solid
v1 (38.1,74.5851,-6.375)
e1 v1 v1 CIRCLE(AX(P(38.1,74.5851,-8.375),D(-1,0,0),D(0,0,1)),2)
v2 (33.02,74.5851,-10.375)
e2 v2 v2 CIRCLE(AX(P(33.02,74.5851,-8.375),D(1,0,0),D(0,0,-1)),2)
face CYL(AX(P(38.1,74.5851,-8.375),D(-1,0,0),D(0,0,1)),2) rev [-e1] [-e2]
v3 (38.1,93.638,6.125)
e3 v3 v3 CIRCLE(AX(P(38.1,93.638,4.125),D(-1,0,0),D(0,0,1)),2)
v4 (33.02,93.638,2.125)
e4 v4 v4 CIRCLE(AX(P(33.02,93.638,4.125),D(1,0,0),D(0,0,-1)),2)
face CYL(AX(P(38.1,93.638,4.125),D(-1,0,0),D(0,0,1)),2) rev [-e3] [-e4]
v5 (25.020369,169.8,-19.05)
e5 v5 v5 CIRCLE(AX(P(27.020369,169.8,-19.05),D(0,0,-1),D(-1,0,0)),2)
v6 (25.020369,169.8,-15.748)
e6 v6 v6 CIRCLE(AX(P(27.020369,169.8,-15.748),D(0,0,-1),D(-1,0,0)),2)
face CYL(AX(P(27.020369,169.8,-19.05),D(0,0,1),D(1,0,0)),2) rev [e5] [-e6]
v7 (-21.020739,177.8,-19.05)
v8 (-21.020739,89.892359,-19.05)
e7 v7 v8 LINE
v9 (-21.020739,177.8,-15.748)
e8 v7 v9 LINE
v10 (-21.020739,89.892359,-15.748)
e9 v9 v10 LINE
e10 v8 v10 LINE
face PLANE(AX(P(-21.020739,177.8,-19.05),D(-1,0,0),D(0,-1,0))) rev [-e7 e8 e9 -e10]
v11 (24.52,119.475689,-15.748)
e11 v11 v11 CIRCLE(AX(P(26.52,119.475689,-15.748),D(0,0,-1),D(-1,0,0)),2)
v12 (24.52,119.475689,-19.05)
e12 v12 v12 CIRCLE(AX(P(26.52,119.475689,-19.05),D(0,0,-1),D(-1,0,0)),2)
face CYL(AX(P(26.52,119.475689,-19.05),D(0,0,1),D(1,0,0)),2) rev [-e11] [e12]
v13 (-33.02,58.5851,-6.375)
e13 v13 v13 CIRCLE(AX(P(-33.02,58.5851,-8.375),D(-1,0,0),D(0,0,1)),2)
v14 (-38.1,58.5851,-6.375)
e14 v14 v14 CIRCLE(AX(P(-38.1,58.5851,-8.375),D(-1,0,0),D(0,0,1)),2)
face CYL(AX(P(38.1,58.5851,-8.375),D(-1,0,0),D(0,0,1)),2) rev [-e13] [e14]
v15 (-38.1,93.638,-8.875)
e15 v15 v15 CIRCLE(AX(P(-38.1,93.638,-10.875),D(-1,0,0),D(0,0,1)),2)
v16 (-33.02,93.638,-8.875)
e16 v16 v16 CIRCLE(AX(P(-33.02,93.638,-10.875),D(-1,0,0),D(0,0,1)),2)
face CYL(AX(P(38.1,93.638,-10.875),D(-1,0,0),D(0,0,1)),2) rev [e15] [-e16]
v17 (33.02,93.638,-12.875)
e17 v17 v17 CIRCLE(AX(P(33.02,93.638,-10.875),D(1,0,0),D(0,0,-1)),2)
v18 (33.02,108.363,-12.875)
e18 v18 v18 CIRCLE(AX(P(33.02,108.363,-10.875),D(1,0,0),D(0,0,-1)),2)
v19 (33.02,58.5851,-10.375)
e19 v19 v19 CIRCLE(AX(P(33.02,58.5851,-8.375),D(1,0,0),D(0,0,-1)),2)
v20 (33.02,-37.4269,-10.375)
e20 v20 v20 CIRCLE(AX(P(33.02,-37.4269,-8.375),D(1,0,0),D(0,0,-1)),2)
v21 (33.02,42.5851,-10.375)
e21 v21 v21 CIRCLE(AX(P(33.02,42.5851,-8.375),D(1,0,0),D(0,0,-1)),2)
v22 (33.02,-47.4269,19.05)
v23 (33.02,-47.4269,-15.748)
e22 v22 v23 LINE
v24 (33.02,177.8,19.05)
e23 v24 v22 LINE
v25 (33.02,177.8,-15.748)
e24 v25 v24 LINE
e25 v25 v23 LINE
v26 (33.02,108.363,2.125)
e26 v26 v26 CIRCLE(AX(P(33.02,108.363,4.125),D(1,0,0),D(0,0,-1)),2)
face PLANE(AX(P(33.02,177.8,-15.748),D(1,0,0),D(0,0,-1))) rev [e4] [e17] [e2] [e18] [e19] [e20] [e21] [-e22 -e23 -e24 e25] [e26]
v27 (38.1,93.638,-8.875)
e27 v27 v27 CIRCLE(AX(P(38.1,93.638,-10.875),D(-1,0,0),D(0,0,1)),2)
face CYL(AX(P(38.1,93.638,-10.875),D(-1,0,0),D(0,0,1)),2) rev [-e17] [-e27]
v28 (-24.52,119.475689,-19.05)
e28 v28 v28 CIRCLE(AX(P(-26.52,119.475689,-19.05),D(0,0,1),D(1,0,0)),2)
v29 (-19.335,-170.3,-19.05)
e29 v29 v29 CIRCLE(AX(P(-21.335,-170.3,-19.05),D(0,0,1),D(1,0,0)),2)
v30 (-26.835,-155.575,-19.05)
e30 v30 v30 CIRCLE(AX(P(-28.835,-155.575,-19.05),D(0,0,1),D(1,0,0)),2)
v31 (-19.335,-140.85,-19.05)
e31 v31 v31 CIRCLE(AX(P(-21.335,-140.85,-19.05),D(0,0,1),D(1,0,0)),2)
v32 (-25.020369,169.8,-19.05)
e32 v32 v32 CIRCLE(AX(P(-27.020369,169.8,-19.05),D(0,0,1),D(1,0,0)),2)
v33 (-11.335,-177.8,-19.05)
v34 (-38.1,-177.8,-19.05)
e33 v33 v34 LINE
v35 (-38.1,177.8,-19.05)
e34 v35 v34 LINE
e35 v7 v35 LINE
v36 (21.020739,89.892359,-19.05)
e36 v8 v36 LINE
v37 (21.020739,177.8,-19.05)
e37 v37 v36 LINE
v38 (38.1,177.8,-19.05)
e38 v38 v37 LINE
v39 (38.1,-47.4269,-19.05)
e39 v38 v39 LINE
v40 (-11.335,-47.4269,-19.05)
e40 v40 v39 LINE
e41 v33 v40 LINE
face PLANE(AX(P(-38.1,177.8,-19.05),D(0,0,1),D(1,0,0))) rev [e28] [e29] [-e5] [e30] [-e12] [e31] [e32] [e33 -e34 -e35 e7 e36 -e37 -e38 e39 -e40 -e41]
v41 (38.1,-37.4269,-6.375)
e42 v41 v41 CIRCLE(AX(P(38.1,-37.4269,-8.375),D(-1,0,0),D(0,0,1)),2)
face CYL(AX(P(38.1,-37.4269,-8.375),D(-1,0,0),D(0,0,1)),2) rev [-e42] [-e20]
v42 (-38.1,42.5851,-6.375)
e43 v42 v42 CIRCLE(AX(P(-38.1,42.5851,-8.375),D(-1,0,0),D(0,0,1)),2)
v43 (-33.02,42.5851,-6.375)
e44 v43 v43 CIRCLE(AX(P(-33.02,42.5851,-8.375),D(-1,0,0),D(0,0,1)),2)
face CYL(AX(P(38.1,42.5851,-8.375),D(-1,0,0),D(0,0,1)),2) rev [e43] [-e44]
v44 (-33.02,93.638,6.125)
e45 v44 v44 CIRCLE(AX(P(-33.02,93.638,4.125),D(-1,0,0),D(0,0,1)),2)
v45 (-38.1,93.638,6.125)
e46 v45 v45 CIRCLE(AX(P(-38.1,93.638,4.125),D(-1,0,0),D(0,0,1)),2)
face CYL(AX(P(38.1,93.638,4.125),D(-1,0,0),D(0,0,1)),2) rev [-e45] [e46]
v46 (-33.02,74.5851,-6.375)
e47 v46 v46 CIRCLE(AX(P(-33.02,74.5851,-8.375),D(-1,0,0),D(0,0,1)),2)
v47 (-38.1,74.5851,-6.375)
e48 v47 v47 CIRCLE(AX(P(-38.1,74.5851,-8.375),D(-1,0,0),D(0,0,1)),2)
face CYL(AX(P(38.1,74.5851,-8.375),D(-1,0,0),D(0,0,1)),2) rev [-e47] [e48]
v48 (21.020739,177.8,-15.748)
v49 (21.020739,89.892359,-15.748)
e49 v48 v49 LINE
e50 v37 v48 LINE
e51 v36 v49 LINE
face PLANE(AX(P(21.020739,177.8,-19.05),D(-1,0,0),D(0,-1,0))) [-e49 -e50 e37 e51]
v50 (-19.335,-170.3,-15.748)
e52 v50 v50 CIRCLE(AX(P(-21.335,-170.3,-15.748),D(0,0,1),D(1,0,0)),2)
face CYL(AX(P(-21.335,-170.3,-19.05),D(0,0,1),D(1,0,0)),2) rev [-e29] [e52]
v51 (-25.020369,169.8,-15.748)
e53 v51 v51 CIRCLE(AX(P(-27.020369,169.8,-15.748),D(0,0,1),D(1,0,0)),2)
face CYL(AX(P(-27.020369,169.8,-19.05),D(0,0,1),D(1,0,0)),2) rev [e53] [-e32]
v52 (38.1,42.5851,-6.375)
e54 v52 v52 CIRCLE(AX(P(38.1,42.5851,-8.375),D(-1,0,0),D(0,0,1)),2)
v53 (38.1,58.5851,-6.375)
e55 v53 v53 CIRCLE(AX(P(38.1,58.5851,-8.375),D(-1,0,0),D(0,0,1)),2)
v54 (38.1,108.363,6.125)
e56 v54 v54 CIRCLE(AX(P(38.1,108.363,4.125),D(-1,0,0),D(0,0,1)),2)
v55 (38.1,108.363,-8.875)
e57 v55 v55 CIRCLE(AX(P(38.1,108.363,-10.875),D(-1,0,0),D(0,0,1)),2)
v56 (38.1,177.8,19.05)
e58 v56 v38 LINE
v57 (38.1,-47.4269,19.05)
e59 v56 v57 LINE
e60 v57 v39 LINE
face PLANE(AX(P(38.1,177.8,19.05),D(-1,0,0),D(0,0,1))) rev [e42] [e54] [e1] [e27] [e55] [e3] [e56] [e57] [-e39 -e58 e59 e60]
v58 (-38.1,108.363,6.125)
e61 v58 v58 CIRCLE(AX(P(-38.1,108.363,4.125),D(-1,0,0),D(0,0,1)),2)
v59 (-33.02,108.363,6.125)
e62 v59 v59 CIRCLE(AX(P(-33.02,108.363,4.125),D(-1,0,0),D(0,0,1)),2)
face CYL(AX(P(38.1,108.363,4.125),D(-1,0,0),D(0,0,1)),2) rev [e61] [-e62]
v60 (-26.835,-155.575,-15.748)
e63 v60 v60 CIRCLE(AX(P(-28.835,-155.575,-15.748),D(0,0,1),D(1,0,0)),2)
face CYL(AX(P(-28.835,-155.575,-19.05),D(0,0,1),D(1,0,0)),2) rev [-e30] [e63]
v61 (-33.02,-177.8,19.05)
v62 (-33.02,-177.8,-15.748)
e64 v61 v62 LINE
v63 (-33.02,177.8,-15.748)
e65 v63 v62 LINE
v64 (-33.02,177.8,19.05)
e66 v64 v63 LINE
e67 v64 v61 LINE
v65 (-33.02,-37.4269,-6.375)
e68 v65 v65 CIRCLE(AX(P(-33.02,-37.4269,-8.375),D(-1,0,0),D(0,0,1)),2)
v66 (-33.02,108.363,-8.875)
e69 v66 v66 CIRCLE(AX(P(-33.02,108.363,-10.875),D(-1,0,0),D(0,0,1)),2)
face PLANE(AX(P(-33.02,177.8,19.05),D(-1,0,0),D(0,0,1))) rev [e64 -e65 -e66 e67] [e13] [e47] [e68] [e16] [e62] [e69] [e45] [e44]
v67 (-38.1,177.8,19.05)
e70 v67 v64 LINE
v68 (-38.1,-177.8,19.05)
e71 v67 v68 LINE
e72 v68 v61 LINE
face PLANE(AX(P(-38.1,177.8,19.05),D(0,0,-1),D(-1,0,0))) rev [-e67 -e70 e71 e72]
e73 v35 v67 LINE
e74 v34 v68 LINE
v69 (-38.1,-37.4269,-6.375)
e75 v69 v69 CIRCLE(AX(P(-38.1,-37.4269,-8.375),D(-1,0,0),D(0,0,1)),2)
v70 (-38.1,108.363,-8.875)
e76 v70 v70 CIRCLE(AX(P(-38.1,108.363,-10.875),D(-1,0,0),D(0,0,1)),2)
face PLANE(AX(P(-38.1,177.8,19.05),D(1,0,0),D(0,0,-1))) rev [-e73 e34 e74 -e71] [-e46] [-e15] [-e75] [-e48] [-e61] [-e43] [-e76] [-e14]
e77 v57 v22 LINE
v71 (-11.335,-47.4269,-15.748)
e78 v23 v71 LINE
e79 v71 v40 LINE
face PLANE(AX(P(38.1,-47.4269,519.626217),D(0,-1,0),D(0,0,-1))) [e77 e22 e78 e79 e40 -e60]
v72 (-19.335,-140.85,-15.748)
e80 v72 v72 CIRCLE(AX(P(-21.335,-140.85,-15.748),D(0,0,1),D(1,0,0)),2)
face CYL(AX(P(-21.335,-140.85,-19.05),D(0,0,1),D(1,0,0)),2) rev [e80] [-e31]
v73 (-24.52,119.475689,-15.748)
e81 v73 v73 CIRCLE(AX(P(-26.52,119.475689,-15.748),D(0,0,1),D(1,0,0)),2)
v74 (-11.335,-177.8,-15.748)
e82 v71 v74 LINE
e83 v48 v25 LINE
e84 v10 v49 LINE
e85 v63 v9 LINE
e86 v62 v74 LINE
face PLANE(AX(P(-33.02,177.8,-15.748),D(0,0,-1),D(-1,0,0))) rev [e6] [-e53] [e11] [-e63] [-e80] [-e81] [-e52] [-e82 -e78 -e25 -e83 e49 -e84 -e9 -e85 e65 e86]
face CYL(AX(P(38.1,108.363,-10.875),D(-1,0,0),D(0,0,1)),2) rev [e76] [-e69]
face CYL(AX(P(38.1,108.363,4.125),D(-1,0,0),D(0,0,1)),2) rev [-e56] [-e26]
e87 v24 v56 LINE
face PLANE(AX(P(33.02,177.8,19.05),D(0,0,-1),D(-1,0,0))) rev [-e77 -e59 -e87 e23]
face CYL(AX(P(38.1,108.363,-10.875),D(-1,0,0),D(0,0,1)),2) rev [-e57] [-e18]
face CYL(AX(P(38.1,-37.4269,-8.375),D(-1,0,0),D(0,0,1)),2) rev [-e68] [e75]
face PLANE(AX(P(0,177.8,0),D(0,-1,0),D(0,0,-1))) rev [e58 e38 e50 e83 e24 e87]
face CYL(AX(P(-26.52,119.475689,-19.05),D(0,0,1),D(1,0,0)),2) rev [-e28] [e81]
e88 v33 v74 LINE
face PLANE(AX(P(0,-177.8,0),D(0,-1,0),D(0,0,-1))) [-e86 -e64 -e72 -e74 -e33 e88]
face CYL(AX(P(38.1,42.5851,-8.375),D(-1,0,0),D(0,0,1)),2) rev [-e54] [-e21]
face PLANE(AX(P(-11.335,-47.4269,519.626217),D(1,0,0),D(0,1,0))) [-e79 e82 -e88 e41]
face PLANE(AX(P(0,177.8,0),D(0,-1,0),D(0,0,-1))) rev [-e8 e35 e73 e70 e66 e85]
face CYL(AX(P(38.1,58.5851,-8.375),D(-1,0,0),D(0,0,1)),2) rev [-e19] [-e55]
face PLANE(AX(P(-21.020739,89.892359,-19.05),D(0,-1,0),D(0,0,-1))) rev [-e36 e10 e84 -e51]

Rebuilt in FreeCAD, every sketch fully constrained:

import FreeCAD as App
import Part
import Sketcher
Q = App.Units.Quantity


def add_polygon(sketch, points):
    """Adds a closed chain of lines whose ends are joined by coincident constraints."""
    first, n = sketch.GeometryCount, len(points)
    for a, b in zip(points, points[1:] + points[:1]):
        sketch.addGeometry(Part.LineSegment(App.Vector(*a, 0), App.Vector(*b, 0)), False)
    for i in range(n):
        sketch.addConstraint(Sketcher.Constraint("Coincident", first + i, 2, first + (i + 1) % n, 1))

doc = App.newDocument("Part")
body = doc.addObject("PartDesign::Body", "Body")

# Sketch on XZ plane
sketch1 = body.newObject("Sketcher::SketchObject", "Sketch")
sketch1.AttachmentSupport = (doc.getObject("XZ_Plane"), [""])
sketch1.MapMode = "FlatFace"
add_polygon(sketch1, [(-38, 19), (-33, 19), (-33, -16), (33, -16), (33, 19), (38, 19), (38, -19), (-38, -19)])  # lines 0-7
sketch1.addConstraint(Sketcher.Constraint("Horizontal", 0))
sketch1.addConstraint(Sketcher.Constraint("Vertical", 1))
sketch1.addConstraint(Sketcher.Constraint("Horizontal", 2))
sketch1.addConstraint(Sketcher.Constraint("Vertical", 3))
sketch1.addConstraint(Sketcher.Constraint("Horizontal", 4))
sketch1.addConstraint(Sketcher.Constraint("Vertical", 5))
sketch1.addConstraint(Sketcher.Constraint("Horizontal", 6))
sketch1.addConstraint(Sketcher.Constraint("Vertical", 7))
sketch1.addConstraint(Sketcher.Constraint("Symmetric", 4, 2, 6, 2, -1, 1))
sketch1.addConstraint(Sketcher.Constraint("Symmetric", 0, 2, 3, 2, -2))
sketch1.addConstraint(Sketcher.Constraint("DistanceX", 6, 2, 6, 1, Q("3 in")))
sketch1.addConstraint(Sketcher.Constraint("DistanceX", 0, 1, 0, 2, Q("0.2 in")))
sketch1.addConstraint(Sketcher.Constraint("DistanceY", 5, 2, 5, 1, Q("1.5 in")))
sketch1.addConstraint(Sketcher.Constraint("DistanceY", 1, 2, 1, 1, Q("1.37 in")))
pad1 = body.newObject("PartDesign::Pad", "Pad")
pad1.Profile = sketch1
pad1.Length = Q("14 in")
pad1.Midplane = True

# Sketch on XY plane
sketch2 = body.newObject("Sketcher::SketchObject", "Sketch001")
sketch2.AttachmentSupport = (doc.getObject("XY_Plane"), [""])
sketch2.MapMode = "FlatFace"
sketch2.AttachmentOffset = App.Placement(App.Vector(0, 0, -0.62 * 25.4), App.Rotation())
sketch2.addGeometry(Part.Circle(App.Vector(-27, 169.8, 0), App.Vector(0, 0, 1), 2), False)  # 0
sketch2.addGeometry(Part.Circle(App.Vector(-26.5, 119.5, 0), App.Vector(0, 0, 1), 2), False)  # 1
add_polygon(sketch2, [(-21, 177.8), (-21, 89.9), (0, 89.9), (0, 177.8)])  # lines 2-5
sketch2.addConstraint(Sketcher.Constraint("Vertical", 2))
sketch2.addConstraint(Sketcher.Constraint("Horizontal", 3))
sketch2.addConstraint(Sketcher.Constraint("Vertical", 4))
sketch2.addConstraint(Sketcher.Constraint("Horizontal", 5))
sketch2.addConstraint(Sketcher.Constraint("Equal", 0, 1))
sketch2.addConstraint(Sketcher.Constraint("PointOnObject", 3, 2, -2))
sketch2.addConstraint(Sketcher.Constraint("DistanceY", -1, 1, 4, 2, Q("7 in")))
sketch2.addConstraint(Sketcher.Constraint("Diameter", 0, 4.0))
sketch2.addConstraint(Sketcher.Constraint("DistanceX", 3, 1, 3, 2, 21.020739))
sketch2.addConstraint(Sketcher.Constraint("DistanceY", 2, 2, 2, 1, 87.907641))
sketch2.addConstraint(Sketcher.Constraint("DistanceY", -1, 1, 0, 3, 169.8))
sketch2.addConstraint(Sketcher.Constraint("DistanceX", 1, 3, -1, 1, 26.52))
sketch2.addConstraint(Sketcher.Constraint("DistanceX", 0, 3, -1, 1, 27.020369))
sketch2.addConstraint(Sketcher.Constraint("DistanceY", -1, 1, 1, 3, 119.475689))
pocket1 = body.newObject("PartDesign::Pocket", "Pocket")
pocket1.Profile = sketch2
pocket1.Type = "ThroughAll"
doc.recompute()

mirrored = body.newObject("PartDesign::Mirrored", "Mirrored")
mirrored.Originals = [pocket1]
mirrored.MirrorPlane = (doc.getObject("YZ_Plane"), [""])
body.Tip = mirrored

# Sketch on XY plane
sketch3 = body.newObject("Sketcher::SketchObject", "Sketch002")
sketch3.AttachmentSupport = (doc.getObject("XY_Plane"), [""])
sketch3.MapMode = "FlatFace"
sketch3.AttachmentOffset = App.Placement(App.Vector(0, 0, -0.62 * 25.4), App.Rotation())
sketch3.addGeometry(Part.Circle(App.Vector(-21.3, -170.3, 0), App.Vector(0, 0, 1), 2), False)
sketch3.addGeometry(Part.Circle(App.Vector(-28.8, -155.6, 0), App.Vector(0, 0, 1), 2), False)
sketch3.addGeometry(Part.Circle(App.Vector(-21.3, -140.8, 0), App.Vector(0, 0, 1), 2), False)
sketch3.addConstraint(Sketcher.Constraint("Equal", 0, 1))
sketch3.addConstraint(Sketcher.Constraint("Equal", 1, 2))
sketch3.addConstraint(Sketcher.Constraint("Vertical", 0, 3, 2, 3))
sketch3.addConstraint(Sketcher.Constraint("Diameter", 0, 4.0))
sketch3.addConstraint(Sketcher.Constraint("DistanceY", 1, 3, -1, 1, Q("6.125 in")))
sketch3.addConstraint(Sketcher.Constraint("DistanceX", 0, 3, -1, 1, 21.335))
sketch3.addConstraint(Sketcher.Constraint("DistanceY", 0, 3, -1, 1, 170.3))
sketch3.addConstraint(Sketcher.Constraint("DistanceX", 1, 3, -1, 1, 28.835))
sketch3.addConstraint(Sketcher.Constraint("DistanceY", 2, 3, -1, 1, 140.85))
pocket2 = body.newObject("PartDesign::Pocket", "Pocket001")
pocket2.Profile = sketch3
pocket2.Type = "ThroughAll"

# Sketch on YZ plane
sketch4 = body.newObject("Sketcher::SketchObject", "Sketch003")
sketch4.AttachmentSupport = (doc.getObject("YZ_Plane"), [""])
sketch4.MapMode = "FlatFace"
sketch4.AttachmentOffset = App.Placement(App.Vector(0, 0, -1.5 * 25.4), App.Rotation())
sketch4.addGeometry(Part.Circle(App.Vector(58.6, -8.4, 0), App.Vector(0, 0, 1), 2), False)
sketch4.addGeometry(Part.Circle(App.Vector(74.6, -8.4, 0), App.Vector(0, 0, 1), 2), False)
sketch4.addGeometry(Part.Circle(App.Vector(42.6, -8.4, 0), App.Vector(0, 0, 1), 2), False)
sketch4.addGeometry(Part.Circle(App.Vector(-37.4, -8.4, 0), App.Vector(0, 0, 1), 2), False)
sketch4.addGeometry(Part.Circle(App.Vector(93.6, -10.9, 0), App.Vector(0, 0, 1), 2), False)
sketch4.addGeometry(Part.Circle(App.Vector(93.6, 4.1, 0), App.Vector(0, 0, 1), 2), False)
sketch4.addGeometry(Part.Circle(App.Vector(108.4, 4.1, 0), App.Vector(0, 0, 1), 2), False)
sketch4.addGeometry(Part.Circle(App.Vector(108.4, -10.9, 0), App.Vector(0, 0, 1), 2), False)
sketch4.addConstraint(Sketcher.Constraint("Equal", 0, 1))
sketch4.addConstraint(Sketcher.Constraint("Equal", 1, 2))
sketch4.addConstraint(Sketcher.Constraint("Equal", 2, 3))
sketch4.addConstraint(Sketcher.Constraint("Equal", 3, 4))
sketch4.addConstraint(Sketcher.Constraint("Equal", 4, 5))
sketch4.addConstraint(Sketcher.Constraint("Equal", 5, 6))
sketch4.addConstraint(Sketcher.Constraint("Equal", 6, 7))
sketch4.addConstraint(Sketcher.Constraint("Horizontal", 0, 3, 1, 3))
sketch4.addConstraint(Sketcher.Constraint("Horizontal", 1, 3, 2, 3))
sketch4.addConstraint(Sketcher.Constraint("Horizontal", 2, 3, 3, 3))
sketch4.addConstraint(Sketcher.Constraint("Horizontal", 5, 3, 6, 3))
sketch4.addConstraint(Sketcher.Constraint("Horizontal", 4, 3, 7, 3))
sketch4.addConstraint(Sketcher.Constraint("Vertical", 4, 3, 5, 3))
sketch4.addConstraint(Sketcher.Constraint("Vertical", 6, 3, 7, 3))
sketch4.addConstraint(Sketcher.Constraint("Diameter", 0, 4.0))
sketch4.addConstraint(Sketcher.Constraint("DistanceX", 3, 3, 0, 3, Q("3.78 in")))
sketch4.addConstraint(Sketcher.Constraint("DistanceX", -1, 1, 0, 3, Q("2.3065 in")))
sketch4.addConstraint(Sketcher.Constraint("DistanceY", 0, 3, -1, 1, 8.375))
sketch4.addConstraint(Sketcher.Constraint("DistanceX", -1, 1, 1, 3, 74.5851))
sketch4.addConstraint(Sketcher.Constraint("DistanceX", -1, 1, 2, 3, 42.5851))
sketch4.addConstraint(Sketcher.Constraint("DistanceX", -1, 1, 4, 3, 93.638))
sketch4.addConstraint(Sketcher.Constraint("DistanceY", 4, 3, -1, 1, 10.875))
sketch4.addConstraint(Sketcher.Constraint("DistanceY", -1, 1, 5, 3, 4.125))
sketch4.addConstraint(Sketcher.Constraint("DistanceX", -1, 1, 6, 3, 108.363))
pocket3 = body.newObject("PartDesign::Pocket", "Pocket002")
pocket3.Profile = sketch4
pocket3.Type = "ThroughAll"
pocket3.Reversed = True

# Sketch on XY plane
sketch5 = body.newObject("Sketcher::SketchObject", "Sketch004")
sketch5.AttachmentSupport = (doc.getObject("XY_Plane"), [""])
sketch5.MapMode = "FlatFace"
sketch5.AttachmentOffset = App.Placement(App.Vector(0, 0, 0.75 * 25.4), App.Rotation())
add_polygon(sketch5, [(766, -47), (-11, -47), (-11, -906), (1068, -1883), (1845, -1025)])  # lines 0-4
sketch5.addConstraint(Sketcher.Constraint("Horizontal", 0))
sketch5.addConstraint(Sketcher.Constraint("Vertical", 1))
sketch5.addConstraint(Sketcher.Constraint("Perpendicular", 2, 3))
sketch5.addConstraint(Sketcher.Constraint("Perpendicular", 3, 4))
sketch5.addConstraint(Sketcher.Constraint("Equal", 2, 4))
sketch5.addConstraint(Sketcher.Constraint("DistanceX", 0, 2, -1, 1, 11.335))
sketch5.addConstraint(Sketcher.Constraint("DistanceY", 0, 2, -1, 1, 47.4269))
sketch5.addConstraint(Sketcher.Constraint("Distance", 2, 1456.078991))
sketch5.addConstraint(Sketcher.Constraint("Distance", 3, 1158.161809))
sketch5.addConstraint(Sketcher.Constraint("DistanceX", 0, 2, 0, 1, 777.474495))
pocket4 = body.newObject("PartDesign::Pocket", "Pocket003")
pocket4.Profile = sketch5
pocket4.Type = "ThroughAll"
pocket4.Midplane = True

doc.recompute()
